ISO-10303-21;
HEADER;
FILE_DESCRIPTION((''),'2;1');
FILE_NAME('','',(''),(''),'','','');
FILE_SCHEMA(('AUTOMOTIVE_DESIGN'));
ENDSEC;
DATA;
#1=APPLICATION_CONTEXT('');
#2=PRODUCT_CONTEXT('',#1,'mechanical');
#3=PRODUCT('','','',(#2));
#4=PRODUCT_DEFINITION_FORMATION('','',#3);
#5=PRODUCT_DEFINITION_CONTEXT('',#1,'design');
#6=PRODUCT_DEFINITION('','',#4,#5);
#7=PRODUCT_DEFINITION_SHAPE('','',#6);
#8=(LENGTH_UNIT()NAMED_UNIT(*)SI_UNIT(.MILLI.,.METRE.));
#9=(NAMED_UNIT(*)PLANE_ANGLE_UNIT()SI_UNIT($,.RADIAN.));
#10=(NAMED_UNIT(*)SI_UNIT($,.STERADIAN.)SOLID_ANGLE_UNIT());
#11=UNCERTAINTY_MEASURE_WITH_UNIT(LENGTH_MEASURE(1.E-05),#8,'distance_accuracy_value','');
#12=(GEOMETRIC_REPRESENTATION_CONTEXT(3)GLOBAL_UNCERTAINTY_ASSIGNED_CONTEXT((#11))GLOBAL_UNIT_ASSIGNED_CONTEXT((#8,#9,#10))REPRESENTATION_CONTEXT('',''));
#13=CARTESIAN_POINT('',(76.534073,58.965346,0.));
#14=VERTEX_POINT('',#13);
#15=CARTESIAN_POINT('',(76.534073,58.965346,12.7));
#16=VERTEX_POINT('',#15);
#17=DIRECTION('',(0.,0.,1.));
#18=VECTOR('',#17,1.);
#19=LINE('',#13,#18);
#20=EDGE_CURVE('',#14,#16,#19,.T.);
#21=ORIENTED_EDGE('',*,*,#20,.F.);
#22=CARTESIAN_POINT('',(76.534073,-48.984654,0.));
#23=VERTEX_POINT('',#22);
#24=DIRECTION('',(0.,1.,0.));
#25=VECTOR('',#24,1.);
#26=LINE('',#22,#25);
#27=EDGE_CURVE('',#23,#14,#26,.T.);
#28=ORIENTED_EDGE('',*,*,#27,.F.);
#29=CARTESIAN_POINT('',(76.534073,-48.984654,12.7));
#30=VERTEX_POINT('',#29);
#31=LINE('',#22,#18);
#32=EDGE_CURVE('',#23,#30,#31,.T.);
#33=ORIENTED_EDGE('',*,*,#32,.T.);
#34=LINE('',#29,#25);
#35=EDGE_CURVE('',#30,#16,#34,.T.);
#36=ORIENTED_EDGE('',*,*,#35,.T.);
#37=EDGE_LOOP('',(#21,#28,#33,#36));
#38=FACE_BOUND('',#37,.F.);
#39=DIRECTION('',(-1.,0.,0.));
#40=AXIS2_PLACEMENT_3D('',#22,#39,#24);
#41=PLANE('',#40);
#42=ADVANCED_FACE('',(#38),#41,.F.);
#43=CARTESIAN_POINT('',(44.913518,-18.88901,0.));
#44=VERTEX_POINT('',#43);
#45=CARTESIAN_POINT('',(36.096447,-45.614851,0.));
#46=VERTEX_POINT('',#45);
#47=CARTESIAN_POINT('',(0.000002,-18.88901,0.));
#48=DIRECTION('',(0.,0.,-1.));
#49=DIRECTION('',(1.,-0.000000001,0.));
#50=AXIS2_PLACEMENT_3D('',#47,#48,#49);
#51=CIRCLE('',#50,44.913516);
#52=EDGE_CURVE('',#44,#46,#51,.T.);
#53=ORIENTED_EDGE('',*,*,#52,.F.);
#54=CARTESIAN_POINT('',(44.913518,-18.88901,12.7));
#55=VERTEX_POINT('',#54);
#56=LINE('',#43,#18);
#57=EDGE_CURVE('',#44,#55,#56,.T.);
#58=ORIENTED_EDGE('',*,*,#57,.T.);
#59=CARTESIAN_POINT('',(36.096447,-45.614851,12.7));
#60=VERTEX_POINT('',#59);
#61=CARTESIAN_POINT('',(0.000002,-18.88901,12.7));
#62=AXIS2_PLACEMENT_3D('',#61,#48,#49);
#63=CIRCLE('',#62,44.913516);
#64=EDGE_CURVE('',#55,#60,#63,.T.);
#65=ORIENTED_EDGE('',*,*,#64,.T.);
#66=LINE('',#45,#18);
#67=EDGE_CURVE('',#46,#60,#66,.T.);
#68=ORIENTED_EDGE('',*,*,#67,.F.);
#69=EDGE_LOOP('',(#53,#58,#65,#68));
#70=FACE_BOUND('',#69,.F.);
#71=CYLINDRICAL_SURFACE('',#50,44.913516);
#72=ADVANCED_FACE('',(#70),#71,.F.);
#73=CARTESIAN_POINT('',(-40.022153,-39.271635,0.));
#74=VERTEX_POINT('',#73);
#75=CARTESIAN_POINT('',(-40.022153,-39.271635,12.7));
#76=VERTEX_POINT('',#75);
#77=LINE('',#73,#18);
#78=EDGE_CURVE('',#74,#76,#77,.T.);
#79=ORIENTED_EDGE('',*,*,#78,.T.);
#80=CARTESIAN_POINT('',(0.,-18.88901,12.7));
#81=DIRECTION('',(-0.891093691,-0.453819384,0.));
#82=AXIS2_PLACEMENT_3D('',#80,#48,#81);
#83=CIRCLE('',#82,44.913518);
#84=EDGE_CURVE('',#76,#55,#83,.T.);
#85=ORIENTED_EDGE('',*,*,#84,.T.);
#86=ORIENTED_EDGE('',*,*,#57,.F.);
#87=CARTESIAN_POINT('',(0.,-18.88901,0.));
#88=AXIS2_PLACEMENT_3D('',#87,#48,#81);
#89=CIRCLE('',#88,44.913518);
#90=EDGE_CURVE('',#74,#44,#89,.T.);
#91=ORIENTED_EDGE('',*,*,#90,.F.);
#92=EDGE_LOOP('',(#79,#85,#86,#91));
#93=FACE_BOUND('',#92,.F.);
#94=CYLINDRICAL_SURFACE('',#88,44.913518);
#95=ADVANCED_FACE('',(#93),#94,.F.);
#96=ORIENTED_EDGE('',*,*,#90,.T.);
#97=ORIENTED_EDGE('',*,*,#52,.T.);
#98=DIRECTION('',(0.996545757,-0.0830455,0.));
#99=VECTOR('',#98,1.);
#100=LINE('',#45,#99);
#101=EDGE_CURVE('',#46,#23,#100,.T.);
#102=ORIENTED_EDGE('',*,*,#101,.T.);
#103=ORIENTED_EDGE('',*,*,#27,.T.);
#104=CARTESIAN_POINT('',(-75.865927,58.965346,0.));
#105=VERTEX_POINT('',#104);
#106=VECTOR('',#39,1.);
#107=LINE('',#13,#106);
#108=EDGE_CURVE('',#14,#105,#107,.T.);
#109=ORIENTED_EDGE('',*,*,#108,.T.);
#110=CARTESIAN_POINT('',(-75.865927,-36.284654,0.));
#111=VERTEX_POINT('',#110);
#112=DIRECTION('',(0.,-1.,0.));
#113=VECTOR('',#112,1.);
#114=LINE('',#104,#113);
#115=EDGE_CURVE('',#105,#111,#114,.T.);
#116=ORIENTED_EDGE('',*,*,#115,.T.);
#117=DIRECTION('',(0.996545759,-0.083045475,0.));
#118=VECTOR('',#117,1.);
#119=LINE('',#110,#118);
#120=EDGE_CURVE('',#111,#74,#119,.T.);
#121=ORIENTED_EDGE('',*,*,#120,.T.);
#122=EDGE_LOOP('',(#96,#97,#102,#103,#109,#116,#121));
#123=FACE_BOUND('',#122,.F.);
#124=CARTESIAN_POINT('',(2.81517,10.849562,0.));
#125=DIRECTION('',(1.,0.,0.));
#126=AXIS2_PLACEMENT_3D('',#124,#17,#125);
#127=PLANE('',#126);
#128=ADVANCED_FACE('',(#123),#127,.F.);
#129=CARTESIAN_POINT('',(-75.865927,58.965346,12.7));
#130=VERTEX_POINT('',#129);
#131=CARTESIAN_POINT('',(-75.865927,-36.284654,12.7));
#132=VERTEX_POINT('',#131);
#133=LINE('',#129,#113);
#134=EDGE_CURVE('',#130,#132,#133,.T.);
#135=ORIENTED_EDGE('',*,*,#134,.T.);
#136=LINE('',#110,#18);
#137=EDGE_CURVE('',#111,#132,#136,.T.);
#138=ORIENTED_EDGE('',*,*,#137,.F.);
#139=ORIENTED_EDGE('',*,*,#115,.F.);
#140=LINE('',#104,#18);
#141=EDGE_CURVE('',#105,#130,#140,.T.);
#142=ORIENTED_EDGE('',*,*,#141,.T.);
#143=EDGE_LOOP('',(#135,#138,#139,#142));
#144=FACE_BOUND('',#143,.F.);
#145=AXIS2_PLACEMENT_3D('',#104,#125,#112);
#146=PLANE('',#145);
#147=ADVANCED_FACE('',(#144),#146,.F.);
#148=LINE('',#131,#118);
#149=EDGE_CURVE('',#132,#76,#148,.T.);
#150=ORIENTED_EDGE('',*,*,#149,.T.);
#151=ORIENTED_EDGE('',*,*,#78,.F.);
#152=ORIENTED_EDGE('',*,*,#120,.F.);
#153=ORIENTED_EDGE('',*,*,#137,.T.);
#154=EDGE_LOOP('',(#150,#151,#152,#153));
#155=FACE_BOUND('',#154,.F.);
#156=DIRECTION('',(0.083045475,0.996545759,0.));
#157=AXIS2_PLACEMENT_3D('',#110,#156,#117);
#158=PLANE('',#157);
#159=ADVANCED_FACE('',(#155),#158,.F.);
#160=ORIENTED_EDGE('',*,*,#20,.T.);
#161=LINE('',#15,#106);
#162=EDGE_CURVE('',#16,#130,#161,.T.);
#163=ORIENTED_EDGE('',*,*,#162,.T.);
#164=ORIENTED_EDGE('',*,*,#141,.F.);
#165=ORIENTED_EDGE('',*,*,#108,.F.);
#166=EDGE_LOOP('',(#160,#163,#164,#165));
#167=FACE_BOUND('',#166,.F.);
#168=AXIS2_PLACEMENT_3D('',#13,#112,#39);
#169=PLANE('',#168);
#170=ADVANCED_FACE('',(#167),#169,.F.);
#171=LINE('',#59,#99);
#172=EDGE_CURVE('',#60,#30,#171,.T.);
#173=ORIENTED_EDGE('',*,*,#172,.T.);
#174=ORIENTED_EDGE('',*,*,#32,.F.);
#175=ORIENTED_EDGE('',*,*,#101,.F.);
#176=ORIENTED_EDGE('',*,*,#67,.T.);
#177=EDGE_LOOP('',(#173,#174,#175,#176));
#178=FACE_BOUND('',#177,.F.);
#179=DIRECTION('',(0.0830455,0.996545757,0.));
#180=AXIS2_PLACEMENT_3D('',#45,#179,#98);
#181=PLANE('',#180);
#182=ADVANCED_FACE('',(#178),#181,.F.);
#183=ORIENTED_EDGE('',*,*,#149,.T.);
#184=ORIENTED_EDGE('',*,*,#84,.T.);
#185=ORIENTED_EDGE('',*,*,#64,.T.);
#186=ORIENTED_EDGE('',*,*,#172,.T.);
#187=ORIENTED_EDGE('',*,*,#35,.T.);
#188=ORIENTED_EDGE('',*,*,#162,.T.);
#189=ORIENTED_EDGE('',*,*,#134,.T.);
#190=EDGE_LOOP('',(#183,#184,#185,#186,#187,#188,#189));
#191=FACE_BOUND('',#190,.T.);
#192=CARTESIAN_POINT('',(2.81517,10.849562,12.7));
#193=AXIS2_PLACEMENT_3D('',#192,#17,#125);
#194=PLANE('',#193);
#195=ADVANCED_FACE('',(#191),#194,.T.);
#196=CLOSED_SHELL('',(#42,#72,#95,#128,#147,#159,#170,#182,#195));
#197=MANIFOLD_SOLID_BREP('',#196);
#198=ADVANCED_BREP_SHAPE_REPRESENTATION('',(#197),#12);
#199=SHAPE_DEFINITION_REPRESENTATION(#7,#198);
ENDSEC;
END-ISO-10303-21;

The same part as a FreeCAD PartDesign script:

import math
import FreeCAD as App
import Part
import Sketcher
from FreeCAD import Vector
Q = App.Units.Quantity

doc = App.newDocument("Part")
params = doc.addObject("Spreadsheet::Sheet", "Params")
for row, (alias, value) in enumerate([
    ("sketch1_width", "6 in"),
    ("sketch1_height", "3.75 in"),
    ("sketch1_height2", "4.25 in"),
    ("pad1_length", "0.5 in"),
], start=1):
    params.set(f"A{row}", alias)
    params.set(f"B{row}", "=" + value)
    params.setAlias(f"B{row}", alias)

body = doc.addObject("PartDesign::Body", "Body")

# Sketch on XY plane
sketch1 = doc.addObject("Sketcher::SketchObject", "Sketch")
body.addObject(sketch1)
sketch1.AttachmentSupport = (doc.XY_Plane, [""])
sketch1.MapMode = "FlatFace"
sketch1.addGeometry(Part.LineSegment(Vector(77, 59, 0), Vector(-76, 59, 0)), False)
sketch1.addGeometry(Part.LineSegment(Vector(-76, 59, 0), Vector(-76, -36, 0)), False)
sketch1.addGeometry(Part.LineSegment(Vector(-76, -36, 0), Vector(-40, -39, 0)), False)
sketch1.addGeometry(Part.ArcOfCircle(Part.Circle(Vector(0, -19, 0), Vector(0, 0, 1), 45), math.radians(0), math.radians(207)), False)
sketch1.addGeometry(Part.ArcOfCircle(Part.Circle(Vector(0, -19, 0), Vector(0, 0, 1), 45), math.radians(-37), math.radians(0)), False)
sketch1.addGeometry(Part.LineSegment(Vector(36, -46, 0), Vector(77, -49, 0)), False)
sketch1.addGeometry(Part.LineSegment(Vector(77, -49, 0), Vector(77, 59, 0)), False)
sketch1.addConstraint(Sketcher.Constraint("Coincident", 0, 2, 1, 1))
sketch1.addConstraint(Sketcher.Constraint("Coincident", 1, 2, 2, 1))
sketch1.addConstraint(Sketcher.Constraint("Coincident", 2, 2, 3, 2))
sketch1.addConstraint(Sketcher.Constraint("Tangent", 3, 1, 4, 2))
sketch1.addConstraint(Sketcher.Constraint("Coincident", 4, 1, 5, 1))
sketch1.addConstraint(Sketcher.Constraint("Coincident", 5, 2, 6, 1))
sketch1.addConstraint(Sketcher.Constraint("Coincident", 6, 2, 0, 1))
sketch1.addConstraint(Sketcher.Constraint("Horizontal", 0))
sketch1.addConstraint(Sketcher.Constraint("Vertical", 1))
sketch1.addConstraint(Sketcher.Constraint("Vertical", 6))
sketch1.addConstraint(Sketcher.Constraint("PointOnObject", 3, 3, -2))
sketch1.addConstraint(Sketcher.Constraint("PointOnObject", 4, 3, -2))
sketch1.addConstraint(Sketcher.Constraint("Parallel", 2, 5))
sketch1.addConstraint(Sketcher.Constraint("Horizontal", 4, 3, 3, 1))
sketch1.addConstraint(Sketcher.Constraint("DistanceX", 0, 2, 0, 1, Q("6 in")))
sketch1.addConstraint(Sketcher.Constraint("DistanceY", 1, 2, 1, 1, Q("3.75 in")))
sketch1.addConstraint(Sketcher.Constraint("DistanceY", 6, 1, 6, 2, Q("4.25 in")))
sketch1.addConstraint(Sketcher.Constraint("Radius", 3, 44.913518))
sketch1.addConstraint(Sketcher.Constraint("DistanceX", 2, 2, 4, 1, 76.1186))
sketch1.addConstraint(Sketcher.Constraint("Distance", 5, 40.577792))
sketch1.addConstraint(Sketcher.Constraint("DistanceY", 3, 3, -1, 1, 18.88901))
sketch1.addConstraint(Sketcher.Constraint("DistanceY", 4, 1, -1, 1, 45.614851))
sketch1.setExpression("Constraints[14]", "Params.sketch1_width")
sketch1.setExpression("Constraints[15]", "Params.sketch1_height")
sketch1.setExpression("Constraints[16]", "Params.sketch1_height2")
pad1 = doc.addObject("PartDesign::Pad", "Pad")
body.addObject(pad1)
pad1.Profile = sketch1
pad1.setExpression("Length", "Params.pad1_length")

doc.recompute()
